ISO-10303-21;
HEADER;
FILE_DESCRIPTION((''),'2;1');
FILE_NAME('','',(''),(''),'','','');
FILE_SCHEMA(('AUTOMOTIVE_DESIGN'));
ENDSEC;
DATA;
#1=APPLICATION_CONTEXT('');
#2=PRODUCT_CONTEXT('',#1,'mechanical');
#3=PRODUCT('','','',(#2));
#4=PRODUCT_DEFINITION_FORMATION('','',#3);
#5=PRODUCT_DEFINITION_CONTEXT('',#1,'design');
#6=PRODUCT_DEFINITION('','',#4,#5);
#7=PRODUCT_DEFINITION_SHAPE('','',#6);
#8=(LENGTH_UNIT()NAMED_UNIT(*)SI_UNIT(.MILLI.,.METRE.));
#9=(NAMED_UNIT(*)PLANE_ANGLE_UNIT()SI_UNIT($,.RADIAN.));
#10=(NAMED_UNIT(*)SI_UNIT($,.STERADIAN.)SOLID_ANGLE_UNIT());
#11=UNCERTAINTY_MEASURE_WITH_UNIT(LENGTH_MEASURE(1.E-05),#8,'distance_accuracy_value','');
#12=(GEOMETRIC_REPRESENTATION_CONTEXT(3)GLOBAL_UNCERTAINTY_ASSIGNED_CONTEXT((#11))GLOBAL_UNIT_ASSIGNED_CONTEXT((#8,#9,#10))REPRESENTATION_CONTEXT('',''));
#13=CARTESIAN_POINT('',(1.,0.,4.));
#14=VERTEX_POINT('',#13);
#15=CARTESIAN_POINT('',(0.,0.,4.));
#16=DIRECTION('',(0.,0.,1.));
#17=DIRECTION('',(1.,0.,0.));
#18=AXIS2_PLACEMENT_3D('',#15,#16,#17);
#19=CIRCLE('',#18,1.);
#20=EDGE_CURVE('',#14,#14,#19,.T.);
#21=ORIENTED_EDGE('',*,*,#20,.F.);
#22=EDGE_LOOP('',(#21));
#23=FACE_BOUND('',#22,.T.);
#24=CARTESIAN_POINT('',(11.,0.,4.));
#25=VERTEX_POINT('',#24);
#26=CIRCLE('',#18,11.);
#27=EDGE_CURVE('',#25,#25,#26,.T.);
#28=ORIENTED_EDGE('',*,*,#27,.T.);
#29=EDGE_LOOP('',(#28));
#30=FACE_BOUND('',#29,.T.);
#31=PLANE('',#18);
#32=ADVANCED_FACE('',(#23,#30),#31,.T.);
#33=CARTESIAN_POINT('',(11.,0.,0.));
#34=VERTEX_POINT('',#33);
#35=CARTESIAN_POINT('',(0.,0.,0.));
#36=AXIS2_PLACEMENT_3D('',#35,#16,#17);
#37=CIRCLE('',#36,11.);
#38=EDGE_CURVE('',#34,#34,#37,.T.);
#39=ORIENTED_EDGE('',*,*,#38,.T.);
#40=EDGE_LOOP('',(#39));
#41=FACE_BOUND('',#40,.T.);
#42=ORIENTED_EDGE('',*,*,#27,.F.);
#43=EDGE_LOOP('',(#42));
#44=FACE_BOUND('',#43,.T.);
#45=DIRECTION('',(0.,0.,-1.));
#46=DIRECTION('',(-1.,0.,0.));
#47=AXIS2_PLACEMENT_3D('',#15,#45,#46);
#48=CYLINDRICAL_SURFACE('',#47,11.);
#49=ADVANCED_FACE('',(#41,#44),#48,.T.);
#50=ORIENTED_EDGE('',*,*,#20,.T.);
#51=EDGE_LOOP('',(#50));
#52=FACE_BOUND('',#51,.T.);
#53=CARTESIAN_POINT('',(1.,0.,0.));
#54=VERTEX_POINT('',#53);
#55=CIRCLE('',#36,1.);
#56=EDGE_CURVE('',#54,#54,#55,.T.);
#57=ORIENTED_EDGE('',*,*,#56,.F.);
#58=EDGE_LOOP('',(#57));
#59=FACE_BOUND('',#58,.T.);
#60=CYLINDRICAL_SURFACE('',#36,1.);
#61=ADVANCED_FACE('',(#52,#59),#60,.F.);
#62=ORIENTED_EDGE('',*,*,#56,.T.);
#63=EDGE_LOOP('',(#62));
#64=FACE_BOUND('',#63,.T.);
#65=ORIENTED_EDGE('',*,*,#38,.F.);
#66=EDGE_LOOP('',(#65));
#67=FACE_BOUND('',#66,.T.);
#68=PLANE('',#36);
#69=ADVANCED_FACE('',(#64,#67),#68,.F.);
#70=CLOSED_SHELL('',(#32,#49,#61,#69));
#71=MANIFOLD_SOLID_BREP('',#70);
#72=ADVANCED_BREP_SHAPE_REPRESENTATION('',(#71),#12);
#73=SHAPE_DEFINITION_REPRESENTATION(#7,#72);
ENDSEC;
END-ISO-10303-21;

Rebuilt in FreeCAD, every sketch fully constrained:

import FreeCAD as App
import Part
import Sketcher

V = App.Vector
Q = App.Units.Quantity

doc = App.newDocument("Part")
body = doc.addObject("PartDesign::Body", "Body")

sketch1 = body.newObject("Sketcher::SketchObject", "Sketch")
sketch1.AttachmentSupport = (doc.getObject("XY_Plane"), [""])
sketch1.MapMode = "FlatFace"
sketch1.addGeometry(Part.Circle(V(0, 0, 0), V(0, 0, 1), 11), False)
sketch1.addConstraint([
    Sketcher.Constraint("Coincident", 0, 3, -1, 1),
    Sketcher.Constraint("Diameter", 0, Q("22 mm")),
])
pad1 = body.newObject("PartDesign::Pad", "Pad")
pad1.Profile = sketch1
pad1.Length = 4

sketch2 = body.newObject("Sketcher::SketchObject", "Sketch001")
sketch2.AttachmentSupport = (doc.getObject("XY_Plane"), [""])
sketch2.MapMode = "FlatFace"
sketch2.AttachmentOffset = App.Placement(V(0, 0, 4), App.Rotation())
sketch2.addGeometry(Part.Circle(V(0, 0, 0), V(0, 0, 1), 1), False)
sketch2.addConstraint([
    Sketcher.Constraint("Coincident", 0, 3, -1, 1),
    Sketcher.Constraint("Diameter", 0, Q("2 mm")),
])
pocket1 = body.newObject("PartDesign::Pocket", "Pocket")
pocket1.Profile = sketch2
pocket1.Type = "ThroughAll"

doc.recompute()
